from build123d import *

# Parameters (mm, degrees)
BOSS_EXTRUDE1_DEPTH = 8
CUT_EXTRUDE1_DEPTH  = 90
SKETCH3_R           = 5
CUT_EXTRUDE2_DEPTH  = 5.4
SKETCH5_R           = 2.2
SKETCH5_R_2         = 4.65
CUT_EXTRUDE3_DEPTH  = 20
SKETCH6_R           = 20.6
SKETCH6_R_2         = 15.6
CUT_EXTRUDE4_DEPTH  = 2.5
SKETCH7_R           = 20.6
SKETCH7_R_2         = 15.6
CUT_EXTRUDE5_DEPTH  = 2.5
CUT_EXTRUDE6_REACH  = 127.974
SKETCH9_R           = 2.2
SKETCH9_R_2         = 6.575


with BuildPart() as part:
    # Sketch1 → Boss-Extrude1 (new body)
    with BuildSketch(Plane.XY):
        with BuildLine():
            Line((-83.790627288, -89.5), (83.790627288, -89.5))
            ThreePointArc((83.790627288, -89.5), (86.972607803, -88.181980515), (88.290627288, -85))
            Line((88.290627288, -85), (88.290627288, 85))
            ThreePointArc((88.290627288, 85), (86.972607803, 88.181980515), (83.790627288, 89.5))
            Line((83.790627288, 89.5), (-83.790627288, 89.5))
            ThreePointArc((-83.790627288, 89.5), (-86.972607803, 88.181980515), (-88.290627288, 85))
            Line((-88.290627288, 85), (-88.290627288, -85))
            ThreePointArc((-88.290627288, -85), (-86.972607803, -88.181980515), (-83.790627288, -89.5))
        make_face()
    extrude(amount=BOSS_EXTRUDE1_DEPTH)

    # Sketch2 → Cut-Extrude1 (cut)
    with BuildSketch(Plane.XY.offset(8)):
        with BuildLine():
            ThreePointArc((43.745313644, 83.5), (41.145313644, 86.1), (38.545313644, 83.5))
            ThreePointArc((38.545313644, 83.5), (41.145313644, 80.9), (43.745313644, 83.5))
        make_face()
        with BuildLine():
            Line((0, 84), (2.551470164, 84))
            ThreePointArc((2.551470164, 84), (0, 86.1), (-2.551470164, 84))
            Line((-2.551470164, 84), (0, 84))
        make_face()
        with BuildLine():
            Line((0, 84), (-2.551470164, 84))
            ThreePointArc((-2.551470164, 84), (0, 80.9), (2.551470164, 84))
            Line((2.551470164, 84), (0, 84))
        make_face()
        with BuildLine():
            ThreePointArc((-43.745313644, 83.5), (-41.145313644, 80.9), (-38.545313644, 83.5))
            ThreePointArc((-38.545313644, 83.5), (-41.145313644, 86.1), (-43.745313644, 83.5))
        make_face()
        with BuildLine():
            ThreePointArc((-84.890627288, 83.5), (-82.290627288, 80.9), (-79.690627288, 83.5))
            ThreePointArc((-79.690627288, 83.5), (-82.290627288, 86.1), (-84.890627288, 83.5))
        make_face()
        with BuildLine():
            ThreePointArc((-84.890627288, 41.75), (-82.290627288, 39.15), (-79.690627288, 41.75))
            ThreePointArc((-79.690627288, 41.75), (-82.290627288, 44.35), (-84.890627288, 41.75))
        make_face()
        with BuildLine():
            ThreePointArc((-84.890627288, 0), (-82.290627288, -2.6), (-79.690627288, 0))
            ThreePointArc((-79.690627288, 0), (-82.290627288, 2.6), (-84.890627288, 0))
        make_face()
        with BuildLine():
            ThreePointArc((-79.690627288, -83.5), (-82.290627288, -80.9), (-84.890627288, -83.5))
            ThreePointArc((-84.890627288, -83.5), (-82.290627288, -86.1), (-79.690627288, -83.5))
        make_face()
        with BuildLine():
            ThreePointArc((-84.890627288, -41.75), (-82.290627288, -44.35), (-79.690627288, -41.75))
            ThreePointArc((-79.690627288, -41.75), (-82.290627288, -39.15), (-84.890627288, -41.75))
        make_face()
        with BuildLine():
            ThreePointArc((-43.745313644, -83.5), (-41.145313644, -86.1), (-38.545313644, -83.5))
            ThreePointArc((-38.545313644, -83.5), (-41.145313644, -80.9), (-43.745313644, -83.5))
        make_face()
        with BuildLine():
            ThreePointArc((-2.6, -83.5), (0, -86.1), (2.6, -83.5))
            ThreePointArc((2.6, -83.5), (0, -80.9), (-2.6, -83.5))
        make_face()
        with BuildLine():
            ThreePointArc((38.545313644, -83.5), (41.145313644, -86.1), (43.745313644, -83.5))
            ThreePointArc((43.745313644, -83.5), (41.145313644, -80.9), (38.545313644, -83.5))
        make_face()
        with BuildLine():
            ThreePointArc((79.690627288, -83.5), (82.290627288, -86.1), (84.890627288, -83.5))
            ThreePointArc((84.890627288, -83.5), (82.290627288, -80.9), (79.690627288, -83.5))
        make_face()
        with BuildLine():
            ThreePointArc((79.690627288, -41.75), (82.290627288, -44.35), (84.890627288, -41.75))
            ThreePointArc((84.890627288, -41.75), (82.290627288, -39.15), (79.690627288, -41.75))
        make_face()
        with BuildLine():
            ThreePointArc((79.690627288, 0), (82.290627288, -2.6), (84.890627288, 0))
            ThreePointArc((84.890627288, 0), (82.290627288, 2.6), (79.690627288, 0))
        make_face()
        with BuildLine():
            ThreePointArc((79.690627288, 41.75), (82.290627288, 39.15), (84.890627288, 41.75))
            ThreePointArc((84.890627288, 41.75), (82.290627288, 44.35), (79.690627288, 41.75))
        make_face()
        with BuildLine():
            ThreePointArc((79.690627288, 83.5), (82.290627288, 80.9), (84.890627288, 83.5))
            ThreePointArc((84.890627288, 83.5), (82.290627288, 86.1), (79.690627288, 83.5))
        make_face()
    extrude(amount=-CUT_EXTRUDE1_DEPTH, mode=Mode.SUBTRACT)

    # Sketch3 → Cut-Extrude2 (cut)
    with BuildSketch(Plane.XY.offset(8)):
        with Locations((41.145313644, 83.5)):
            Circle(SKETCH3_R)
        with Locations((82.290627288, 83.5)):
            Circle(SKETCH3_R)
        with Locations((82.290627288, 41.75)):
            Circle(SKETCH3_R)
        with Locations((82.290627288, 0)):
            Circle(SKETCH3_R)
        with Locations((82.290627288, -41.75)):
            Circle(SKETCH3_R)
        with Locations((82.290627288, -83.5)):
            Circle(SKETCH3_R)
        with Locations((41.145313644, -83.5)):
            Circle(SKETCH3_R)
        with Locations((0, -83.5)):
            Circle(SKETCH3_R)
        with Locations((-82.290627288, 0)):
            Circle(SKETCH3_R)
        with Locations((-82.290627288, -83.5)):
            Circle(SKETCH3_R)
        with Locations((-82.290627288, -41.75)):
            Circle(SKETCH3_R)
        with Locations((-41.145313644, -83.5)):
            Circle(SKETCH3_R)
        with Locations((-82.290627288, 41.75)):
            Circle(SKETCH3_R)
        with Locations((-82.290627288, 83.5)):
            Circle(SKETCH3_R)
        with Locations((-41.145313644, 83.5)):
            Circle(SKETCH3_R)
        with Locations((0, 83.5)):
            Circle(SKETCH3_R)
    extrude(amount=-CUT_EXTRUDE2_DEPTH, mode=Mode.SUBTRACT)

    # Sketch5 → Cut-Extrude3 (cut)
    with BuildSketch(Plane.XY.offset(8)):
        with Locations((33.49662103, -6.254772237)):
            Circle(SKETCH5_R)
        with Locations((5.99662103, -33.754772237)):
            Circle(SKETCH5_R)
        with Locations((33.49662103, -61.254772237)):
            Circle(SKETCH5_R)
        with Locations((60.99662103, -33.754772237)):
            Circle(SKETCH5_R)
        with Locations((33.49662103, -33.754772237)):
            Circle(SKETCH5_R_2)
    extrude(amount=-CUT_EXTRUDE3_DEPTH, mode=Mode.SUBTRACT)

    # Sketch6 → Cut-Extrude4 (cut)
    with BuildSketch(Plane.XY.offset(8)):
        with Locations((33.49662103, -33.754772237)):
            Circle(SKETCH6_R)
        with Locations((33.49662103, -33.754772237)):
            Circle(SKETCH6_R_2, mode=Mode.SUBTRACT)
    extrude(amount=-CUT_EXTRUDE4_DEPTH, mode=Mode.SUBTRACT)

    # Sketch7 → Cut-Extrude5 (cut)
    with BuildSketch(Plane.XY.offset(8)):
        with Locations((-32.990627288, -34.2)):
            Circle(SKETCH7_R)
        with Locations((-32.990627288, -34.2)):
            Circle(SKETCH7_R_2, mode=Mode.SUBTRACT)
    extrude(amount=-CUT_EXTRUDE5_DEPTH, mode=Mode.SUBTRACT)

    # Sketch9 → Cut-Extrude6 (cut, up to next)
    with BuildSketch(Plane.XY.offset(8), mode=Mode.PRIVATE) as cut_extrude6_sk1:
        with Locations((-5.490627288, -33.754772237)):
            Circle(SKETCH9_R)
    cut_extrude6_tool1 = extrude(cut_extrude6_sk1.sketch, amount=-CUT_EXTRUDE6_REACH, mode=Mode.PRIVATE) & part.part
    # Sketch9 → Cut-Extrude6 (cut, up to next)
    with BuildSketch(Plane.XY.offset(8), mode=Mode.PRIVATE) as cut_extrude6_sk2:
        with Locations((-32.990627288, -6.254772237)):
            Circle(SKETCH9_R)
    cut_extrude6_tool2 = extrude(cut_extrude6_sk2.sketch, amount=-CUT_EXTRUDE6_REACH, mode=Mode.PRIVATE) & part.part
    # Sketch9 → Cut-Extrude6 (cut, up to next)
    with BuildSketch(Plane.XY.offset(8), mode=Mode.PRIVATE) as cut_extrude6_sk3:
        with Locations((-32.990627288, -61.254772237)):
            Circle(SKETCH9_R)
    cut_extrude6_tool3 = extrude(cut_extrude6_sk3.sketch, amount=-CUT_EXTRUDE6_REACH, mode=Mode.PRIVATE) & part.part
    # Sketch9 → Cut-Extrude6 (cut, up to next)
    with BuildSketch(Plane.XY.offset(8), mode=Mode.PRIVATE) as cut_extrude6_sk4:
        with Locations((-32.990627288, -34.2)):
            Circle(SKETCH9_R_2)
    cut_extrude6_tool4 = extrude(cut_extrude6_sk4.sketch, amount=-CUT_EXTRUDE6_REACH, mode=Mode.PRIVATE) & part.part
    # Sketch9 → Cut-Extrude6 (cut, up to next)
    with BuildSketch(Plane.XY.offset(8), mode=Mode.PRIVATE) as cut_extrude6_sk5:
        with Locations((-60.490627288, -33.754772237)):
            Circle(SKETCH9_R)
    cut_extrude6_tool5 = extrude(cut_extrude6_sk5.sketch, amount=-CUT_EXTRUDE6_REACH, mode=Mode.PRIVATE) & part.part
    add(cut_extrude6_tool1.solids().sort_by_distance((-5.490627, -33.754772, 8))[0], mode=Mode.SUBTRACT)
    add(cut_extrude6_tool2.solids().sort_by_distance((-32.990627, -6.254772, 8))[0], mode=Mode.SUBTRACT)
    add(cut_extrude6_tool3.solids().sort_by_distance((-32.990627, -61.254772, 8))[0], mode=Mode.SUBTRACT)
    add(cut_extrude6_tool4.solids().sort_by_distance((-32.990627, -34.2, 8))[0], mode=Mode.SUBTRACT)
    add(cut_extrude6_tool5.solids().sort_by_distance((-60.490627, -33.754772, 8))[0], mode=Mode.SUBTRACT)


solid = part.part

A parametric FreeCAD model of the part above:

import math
import FreeCAD as App
import Part
import Sketcher

V = App.Vector

doc = App.newDocument("Part")
body = doc.addObject("PartDesign::Body", "Body")

# Sketch on XY plane
sketch1 = body.newObject("Sketcher::SketchObject", "Sketch")
sketch1.AttachmentSupport = (doc.getObject("XY_Plane"), [""])
sketch1.MapMode = "FlatFace"
sketch1.addGeometry(Part.LineSegment(V(-83.8, -89.5, 0), V(83.8, -89.5, 0)), False)
sketch1.addGeometry(Part.ArcOfCircle(Part.Circle(V(83.8, -85, 0), V(0, 0, 1), 4.5), math.radians(-90), math.radians(0)), False)
sketch1.addGeometry(Part.LineSegment(V(88.3, -85, 0), V(88.3, 85, 0)), False)
sketch1.addGeometry(Part.ArcOfCircle(Part.Circle(V(83.8, 85, 0), V(0, 0, 1), 4.5), math.radians(0), math.radians(90)), False)
sketch1.addGeometry(Part.LineSegment(V(83.8, 89.5, 0), V(-83.8, 89.5, 0)), False)
sketch1.addGeometry(Part.ArcOfCircle(Part.Circle(V(-83.8, 85, 0), V(0, 0, 1), 4.5), math.radians(90), math.radians(180)), False)
sketch1.addGeometry(Part.LineSegment(V(-88.3, 85, 0), V(-88.3, -85, 0)), False)
sketch1.addGeometry(Part.ArcOfCircle(Part.Circle(V(-83.8, -85, 0), V(0, 0, 1), 4.5), math.radians(-180), math.radians(-90)), False)
sketch1.addConstraint(Sketcher.Constraint("Tangent", 0, 2, 1, 1))
sketch1.addConstraint(Sketcher.Constraint("Tangent", 1, 2, 2, 1))
sketch1.addConstraint(Sketcher.Constraint("Tangent", 2, 2, 3, 1))
sketch1.addConstraint(Sketcher.Constraint("Tangent", 3, 2, 4, 1))
sketch1.addConstraint(Sketcher.Constraint("Tangent", 4, 2, 5, 1))
sketch1.addConstraint(Sketcher.Constraint("Tangent", 5, 2, 6, 1))
sketch1.addConstraint(Sketcher.Constraint("Tangent", 6, 2, 7, 1))
sketch1.addConstraint(Sketcher.Constraint("Tangent", 7, 2, 0, 1))
sketch1.addConstraint(Sketcher.Constraint("Horizontal", 0))
sketch1.addConstraint(Sketcher.Constraint("Vertical", 2))
sketch1.addConstraint(Sketcher.Constraint("Horizontal", 4))
sketch1.addConstraint(Sketcher.Constraint("Vertical", 6))
sketch1.addConstraint(Sketcher.Constraint("Equal", 1, 3))
sketch1.addConstraint(Sketcher.Constraint("Equal", 3, 5))
sketch1.addConstraint(Sketcher.Constraint("Equal", 5, 7))
sketch1.addConstraint(Sketcher.Constraint("Symmetric", 1, 3, 5, 3, -1, 1))
sketch1.addConstraint(Sketcher.Constraint("Radius", 1, 4.5))
sketch1.addConstraint(Sketcher.Constraint("DistanceY", 2, 1, 2, 2, 170.0))
sketch1.addConstraint(Sketcher.Constraint("DistanceX", 0, 1, 0, 2, 167.581255))
pad1 = body.newObject("PartDesign::Pad", "Pad")
pad1.Profile = sketch1
pad1.Length = 8

# Sketch on XY plane
sketch2 = body.newObject("Sketcher::SketchObject", "Sketch001")
sketch2.AttachmentSupport = (doc.getObject("XY_Plane"), [""])
sketch2.MapMode = "FlatFace"
sketch2.AttachmentOffset = App.Placement(V(0, 0, 8), App.Rotation())
sketch2.addGeometry(Part.Circle(V(41.1, 83.5, 0), V(0, 0, 1), 2.6), False)
sketch2.addGeometry(Part.ArcOfCircle(Part.Circle(V(0, 83.5, 0), V(0, 0, 1), 2.6), math.radians(11), math.radians(169)), False)
sketch2.addGeometry(Part.ArcOfCircle(Part.Circle(V(0, 83.5, 0), V(0, 0, 1), 2.6), math.radians(169), math.radians(371)), False)
sketch2.addGeometry(Part.Circle(V(-41.1, 83.5, 0), V(0, 0, 1), 2.6), False)
sketch2.addGeometry(Part.Circle(V(-82.3, 83.5, 0), V(0, 0, 1), 2.6), False)
sketch2.addGeometry(Part.Circle(V(-82.3, 41.8, 0), V(0, 0, 1), 2.6), False)
sketch2.addGeometry(Part.Circle(V(-82.3, 0, 0), V(0, 0, 1), 2.6), False)
sketch2.addGeometry(Part.Circle(V(-82.3, -83.5, 0), V(0, 0, 1), 2.6), False)
sketch2.addGeometry(Part.Circle(V(-82.3, -41.8, 0), V(0, 0, 1), 2.6), False)
sketch2.addGeometry(Part.Circle(V(-41.1, -83.5, 0), V(0, 0, 1), 2.6), False)
sketch2.addGeometry(Part.Circle(V(0, -83.5, 0), V(0, 0, 1), 2.6), False)
sketch2.addGeometry(Part.Circle(V(41.1, -83.5, 0), V(0, 0, 1), 2.6), False)
sketch2.addGeometry(Part.Circle(V(82.3, -83.5, 0), V(0, 0, 1), 2.6), False)
sketch2.addGeometry(Part.Circle(V(82.3, -41.8, 0), V(0, 0, 1), 2.6), False)
sketch2.addGeometry(Part.Circle(V(82.3, 0, 0), V(0, 0, 1), 2.6), False)
sketch2.addGeometry(Part.Circle(V(82.3, 41.8, 0), V(0, 0, 1), 2.6), False)
sketch2.addGeometry(Part.Circle(V(82.3, 83.5, 0), V(0, 0, 1), 2.6), False)
sketch2.addConstraint(Sketcher.Constraint("Tangent", 1, 1, 2, 2))
sketch2.addConstraint(Sketcher.Constraint("Coincident", 2, 1, 1, 2))
sketch2.addConstraint(Sketcher.Constraint("Equal", 0, 1))
sketch2.addConstraint(Sketcher.Constraint("Equal", 2, 3))
sketch2.addConstraint(Sketcher.Constraint("Equal", 3, 4))
sketch2.addConstraint(Sketcher.Constraint("Equal", 4, 5))
sketch2.addConstraint(Sketcher.Constraint("Equal", 5, 6))
sketch2.addConstraint(Sketcher.Constraint("Equal", 6, 7))
sketch2.addConstraint(Sketcher.Constraint("Equal", 7, 8))
sketch2.addConstraint(Sketcher.Constraint("Equal", 8, 9))
sketch2.addConstraint(Sketcher.Constraint("Equal", 9, 10))
sketch2.addConstraint(Sketcher.Constraint("Equal", 10, 11))
sketch2.addConstraint(Sketcher.Constraint("Equal", 11, 12))
sketch2.addConstraint(Sketcher.Constraint("Equal", 12, 13))
sketch2.addConstraint(Sketcher.Constraint("Equal", 13, 14))
sketch2.addConstraint(Sketcher.Constraint("Equal", 14, 15))
sketch2.addConstraint(Sketcher.Constraint("Equal", 15, 16))
sketch2.addConstraint(Sketcher.Constraint("Symmetric", 0, 3, 9, 3, -1, 1))
sketch2.addConstraint(Sketcher.Constraint("Symmetric", 1, 3, 10, 3, -1, 1))
sketch2.addConstraint(Sketcher.Constraint("Symmetric", 3, 3, 11, 3, -1, 1))
sketch2.addConstraint(Sketcher.Constraint("Symmetric", 4, 3, 12, 3, -1, 1))
sketch2.addConstraint(Sketcher.Constraint("Symmetric", 5, 3, 13, 3, -1, 1))
sketch2.addConstraint(Sketcher.Constraint("Symmetric", 6, 3, 14, 3, -1, 1))
sketch2.addConstraint(Sketcher.Constraint("Symmetric", 8, 3, 15, 3, -1, 1))
sketch2.addConstraint(Sketcher.Constraint("Symmetric", 7, 3, 16, 3, -1, 1))
sketch2.addConstraint(Sketcher.Constraint("Symmetric", 0, 3, 3, 3, -2))
sketch2.addConstraint(Sketcher.Constraint("Symmetric", 7, 3, 12, 3, -2))
sketch2.addConstraint(Sketcher.Constraint("Symmetric", 8, 3, 13, 3, -2))
sketch2.addConstraint(Sketcher.Constraint("Symmetric", 1, 1, 2, 1, -2))
sketch2.addConstraint(Sketcher.Constraint("PointOnObject", 6, 3, -1))
sketch2.addConstraint(Sketcher.Constraint("Horizontal", 0, 3, 1, 3))
sketch2.addConstraint(Sketcher.Constraint("Horizontal", 3, 3, 4, 3))
sketch2.addConstraint(Sketcher.Constraint("Vertical", 4, 3, 5, 3))
sketch2.addConstraint(Sketcher.Constraint("Vertical", 5, 3, 6, 3))
sketch2.addConstraint(Sketcher.Constraint("Diameter", 0, 5.2))
sketch2.addConstraint(Sketcher.Constraint("DistanceY", -1, 1, 1, 1, 84.0))
sketch2.addConstraint(Sketcher.Constraint("DistanceY", 7, 3, 4, 3, 167.0))
sketch2.addConstraint(Sketcher.Constraint("DistanceY", 8, 3, 5, 3, 83.5))
sketch2.addConstraint(Sketcher.Constraint("DistanceX", 4, 3, 0, 3, 123.435941))
sketch2.addConstraint(Sketcher.Constraint("DistanceX", -1, 1, 0, 3, 41.145314))
pocket1 = body.newObject("PartDesign::Pocket", "Pocket")
pocket1.Profile = sketch2
pocket1.Length = 90

# Sketch on XY plane
sketch3 = body.newObject("Sketcher::SketchObject", "Sketch002")
sketch3.AttachmentSupport = (doc.getObject("XY_Plane"), [""])
sketch3.MapMode = "FlatFace"
sketch3.AttachmentOffset = App.Placement(V(0, 0, 8), App.Rotation())
sketch3.addGeometry(Part.Circle(V(41, 84, 0), V(0, 0, 1), 5), False)
sketch3.addGeometry(Part.Circle(V(82, 84, 0), V(0, 0, 1), 5), False)
sketch3.addGeometry(Part.Circle(V(82, 42, 0), V(0, 0, 1), 5), False)
sketch3.addGeometry(Part.Circle(V(82, 0, 0), V(0, 0, 1), 5), False)
sketch3.addGeometry(Part.Circle(V(82, -42, 0), V(0, 0, 1), 5), False)
sketch3.addGeometry(Part.Circle(V(82, -84, 0), V(0, 0, 1), 5), False)
sketch3.addGeometry(Part.Circle(V(41, -84, 0), V(0, 0, 1), 5), False)
sketch3.addGeometry(Part.Circle(V(0, -84, 0), V(0, 0, 1), 5), False)
sketch3.addGeometry(Part.Circle(V(-82, 0, 0), V(0, 0, 1), 5), False)
sketch3.addGeometry(Part.Circle(V(-82, -84, 0), V(0, 0, 1), 5), False)
sketch3.addGeometry(Part.Circle(V(-82, -42, 0), V(0, 0, 1), 5), False)
sketch3.addGeometry(Part.Circle(V(-41, -84, 0), V(0, 0, 1), 5), False)
sketch3.addGeometry(Part.Circle(V(-82, 42, 0), V(0, 0, 1), 5), False)
sketch3.addGeometry(Part.Circle(V(-82, 84, 0), V(0, 0, 1), 5), False)
sketch3.addGeometry(Part.Circle(V(-41, 84, 0), V(0, 0, 1), 5), False)
sketch3.addGeometry(Part.Circle(V(0, 84, 0), V(0, 0, 1), 5), False)
sketch3.addConstraint(Sketcher.Constraint("Equal", 0, 1))
sketch3.addConstraint(Sketcher.Constraint("Equal", 1, 2))
sketch3.addConstraint(Sketcher.Constraint("Equal", 2, 3))
sketch3.addConstraint(Sketcher.Constraint("Equal", 3, 4))
sketch3.addConstraint(Sketcher.Constraint("Equal", 4, 5))
sketch3.addConstraint(Sketcher.Constraint("Equal", 5, 6))
sketch3.addConstraint(Sketcher.Constraint("Equal", 6, 7))
sketch3.addConstraint(Sketcher.Constraint("Equal", 7, 8))
sketch3.addConstraint(Sketcher.Constraint("Equal", 8, 9))
sketch3.addConstraint(Sketcher.Constraint("Equal", 9, 10))
sketch3.addConstraint(Sketcher.Constraint("Equal", 10, 11))
sketch3.addConstraint(Sketcher.Constraint("Equal", 11, 12))
sketch3.addConstraint(Sketcher.Constraint("Equal", 12, 13))
sketch3.addConstraint(Sketcher.Constraint("Equal", 13, 14))
sketch3.addConstraint(Sketcher.Constraint("Equal", 14, 15))
sketch3.addConstraint(Sketcher.Constraint("Symmetric", 3, 3, 8, 3, -1, 1))
sketch3.addConstraint(Sketcher.Constraint("Symmetric", 1, 3, 9, 3, -1, 1))
sketch3.addConstraint(Sketcher.Constraint("Symmetric", 2, 3, 10, 3, -1, 1))
sketch3.addConstraint(Sketcher.Constraint("Symmetric", 0, 3, 11, 3, -1, 1))
sketch3.addConstraint(Sketcher.Constraint("Symmetric", 4, 3, 12, 3, -1, 1))
sketch3.addConstraint(Sketcher.Constraint("Symmetric", 5, 3, 13, 3, -1, 1))
sketch3.addConstraint(Sketcher.Constraint("Symmetric", 6, 3, 14, 3, -1, 1))
sketch3.addConstraint(Sketcher.Constraint("Symmetric", 7, 3, 15, 3, -1, 1))
sketch3.addConstraint(Sketcher.Constraint("Symmetric", 5, 3, 9, 3, -2))
sketch3.addConstraint(Sketcher.Constraint("Symmetric", 4, 3, 10, 3, -2))
sketch3.addConstraint(Sketcher.Constraint("Symmetric", 6, 3, 11, 3, -2))
sketch3.addConstraint(Sketcher.Constraint("PointOnObject", 3, 3, -1))
sketch3.addConstraint(Sketcher.Constraint("PointOnObject", 7, 3, -2))
sketch3.addConstraint(Sketcher.Constraint("Horizontal", 0, 3, 1, 3))
sketch3.addConstraint(Sketcher.Constraint("Horizontal", 6, 3, 7, 3))
sketch3.addConstraint(Sketcher.Constraint("Vertical", 1, 3, 2, 3))
sketch3.addConstraint(Sketcher.Constraint("Vertical", 2, 3, 3, 3))
sketch3.addConstraint(Sketcher.Constraint("Diameter", 0, 10.0))
sketch3.addConstraint(Sketcher.Constraint("DistanceY", 5, 3, 1, 3, 167.0))
sketch3.addConstraint(Sketcher.Constraint("DistanceY", 4, 3, 2, 3, 83.5))
sketch3.addConstraint(Sketcher.Constraint("DistanceX", 8, 3, 0, 3, 123.435941))
sketch3.addConstraint(Sketcher.Constraint("DistanceX", -1, 1, 0, 3, 41.145314))
pocket2 = body.newObject("PartDesign::Pocket", "Pocket001")
pocket2.Profile = sketch3
pocket2.Length = 5.4

# Sketch on XY plane
sketch4 = body.newObject("Sketcher::SketchObject", "Sketch003")
sketch4.AttachmentSupport = (doc.getObject("XY_Plane"), [""])
sketch4.MapMode = "FlatFace"
sketch4.AttachmentOffset = App.Placement(V(0, 0, 8), App.Rotation())
sketch4.addGeometry(Part.Circle(V(33.5, -6.3, 0), V(0, 0, 1), 2.2), False)
sketch4.addGeometry(Part.Circle(V(6, -33.8, 0), V(0, 0, 1), 2.2), False)
sketch4.addGeometry(Part.Circle(V(33.5, -61.3, 0), V(0, 0, 1), 2.2), False)
sketch4.addGeometry(Part.Circle(V(61, -33.8, 0), V(0, 0, 1), 2.2), False)
sketch4.addGeometry(Part.Circle(V(33.5, -33.8, 0), V(0, 0, 1), 4.7), False)
sketch4.addConstraint(Sketcher.Constraint("Equal", 0, 1))
sketch4.addConstraint(Sketcher.Constraint("Equal", 1, 2))
sketch4.addConstraint(Sketcher.Constraint("Equal", 2, 3))
sketch4.addConstraint(Sketcher.Constraint("Horizontal", 1, 3, 3, 3))
sketch4.addConstraint(Sketcher.Constraint("Horizontal", 3, 3, 4, 3))
sketch4.addConstraint(Sketcher.Constraint("Vertical", 0, 3, 2, 3))
sketch4.addConstraint(Sketcher.Constraint("Vertical", 2, 3, 4, 3))
sketch4.addConstraint(Sketcher.Constraint("Diameter", 0, 4.4))
sketch4.addConstraint(Sketcher.Constraint("Diameter", 4, 9.3))
sketch4.addConstraint(Sketcher.Constraint("DistanceY", 2, 3, 0, 3, 55.0))
sketch4.addConstraint(Sketcher.Constraint("DistanceX", 1, 3, 3, 3, 55.0))
sketch4.addConstraint(Sketcher.Constraint("DistanceX", 1, 3, 0, 3, 27.5))
sketch4.addConstraint(Sketcher.Constraint("DistanceY", 1, 3, 0, 3, 27.5))
sketch4.addConstraint(Sketcher.Constraint("DistanceX", -1, 1, 0, 3, 33.496621))
sketch4.addConstraint(Sketcher.Constraint("DistanceY", 0, 3, -1, 1, 6.254772))
pocket3 = body.newObject("PartDesign::Pocket", "Pocket002")
pocket3.Profile = sketch4
pocket3.Length = 20

# Sketch on XY plane
sketch5 = body.newObject("Sketcher::SketchObject", "Sketch004")
sketch5.AttachmentSupport = (doc.getObject("XY_Plane"), [""])
sketch5.MapMode = "FlatFace"
sketch5.AttachmentOffset = App.Placement(V(0, 0, 8), App.Rotation())
sketch5.addGeometry(Part.Circle(V(33, -34, 0), V(0, 0, 1), 21), False)
sketch5.addGeometry(Part.Circle(V(33, -34, 0), V(0, 0, 1), 16), False)
sketch5.addConstraint(Sketcher.Constraint("Coincident", 1, 3, 0, 3))
sketch5.addConstraint(Sketcher.Constraint("Diameter", 0, 41.2))
sketch5.addConstraint(Sketcher.Constraint("Diameter", 1, 31.2))
sketch5.addConstraint(Sketcher.Constraint("DistanceX", -1, 1, 0, 3, 33.496621))
sketch5.addConstraint(Sketcher.Constraint("DistanceY", 0, 3, -1, 1, 33.754772))
pocket4 = body.newObject("PartDesign::Pocket", "Pocket003")
pocket4.Profile = sketch5
pocket4.Length = 2.5

# Sketch on XY plane
sketch6 = body.newObject("Sketcher::SketchObject", "Sketch005")
sketch6.AttachmentSupport = (doc.getObject("XY_Plane"), [""])
sketch6.MapMode = "FlatFace"
sketch6.AttachmentOffset = App.Placement(V(0, 0, 8), App.Rotation())
sketch6.addGeometry(Part.Circle(V(-33, -34, 0), V(0, 0, 1), 21), False)
sketch6.addGeometry(Part.Circle(V(-33, -34, 0), V(0, 0, 1), 16), False)
sketch6.addConstraint(Sketcher.Constraint("Coincident", 1, 3, 0, 3))
sketch6.addConstraint(Sketcher.Constraint("Diameter", 0, 41.2))
sketch6.addConstraint(Sketcher.Constraint("Diameter", 1, 31.2))
sketch6.addConstraint(Sketcher.Constraint("DistanceY", 0, 3, -1, 1, 34.2))
sketch6.addConstraint(Sketcher.Constraint("DistanceX", 0, 3, -1, 1, 32.990627))
pocket5 = body.newObject("PartDesign::Pocket", "Pocket004")
pocket5.Profile = sketch6
pocket5.Length = 2.5

# Sketch on XY plane
sketch7 = body.newObject("Sketcher::SketchObject", "Sketch006")
sketch7.AttachmentSupport = (doc.getObject("XY_Plane"), [""])
sketch7.MapMode = "FlatFace"
sketch7.AttachmentOffset = App.Placement(V(0, 0, 8), App.Rotation())
sketch7.addGeometry(Part.Circle(V(-5.5, -33.8, 0), V(0, 0, 1), 2.2), False)
sketch7.addConstraint(Sketcher.Constraint("Diameter", 0, 4.4))
sketch7.addConstraint(Sketcher.Constraint("DistanceX", 0, 3, -1, 1, 5.490627))
sketch7.addConstraint(Sketcher.Constraint("DistanceY", 0, 3, -1, 1, 33.754772))
pocket6 = body.newObject("PartDesign::Pocket", "Pocket005")
pocket6.Profile = sketch7
pocket6.Type = "UpToFirst"

# Sketch on XY plane
sketch8 = body.newObject("Sketcher::SketchObject", "Sketch007")
sketch8.AttachmentSupport = (doc.getObject("XY_Plane"), [""])
sketch8.MapMode = "FlatFace"
sketch8.AttachmentOffset = App.Placement(V(0, 0, 8), App.Rotation())
sketch8.addGeometry(Part.Circle(V(-33, -6.3, 0), V(0, 0, 1), 2.2), False)
sketch8.addConstraint(Sketcher.Constraint("Diameter", 0, 4.4))
sketch8.addConstraint(Sketcher.Constraint("DistanceX", 0, 3, -1, 1, 32.990627))
sketch8.addConstraint(Sketcher.Constraint("DistanceY", 0, 3, -1, 1, 6.254772))
pocket7 = body.newObject("PartDesign::Pocket", "Pocket006")
pocket7.Profile = sketch8
pocket7.Type = "UpToFirst"

# Sketch on XY plane
sketch9 = body.newObject("Sketcher::SketchObject", "Sketch008")
sketch9.AttachmentSupport = (doc.getObject("XY_Plane"), [""])
sketch9.MapMode = "FlatFace"
sketch9.AttachmentOffset = App.Placement(V(0, 0, 8), App.Rotation())
sketch9.addGeometry(Part.Circle(V(-33, -61.3, 0), V(0, 0, 1), 2.2), False)
sketch9.addConstraint(Sketcher.Constraint("Diameter", 0, 4.4))
sketch9.addConstraint(Sketcher.Constraint("DistanceX", 0, 3, -1, 1, 32.990627))
sketch9.addConstraint(Sketcher.Constraint("DistanceY", 0, 3, -1, 1, 61.254772))
pocket8 = body.newObject("PartDesign::Pocket", "Pocket007")
pocket8.Profile = sketch9
pocket8.Type = "UpToFirst"

# Sketch on XY plane
sketch10 = body.newObject("Sketcher::SketchObject", "Sketch009")
sketch10.AttachmentSupport = (doc.getObject("XY_Plane"), [""])
sketch10.MapMode = "FlatFace"
sketch10.AttachmentOffset = App.Placement(V(0, 0, 8), App.Rotation())
sketch10.addGeometry(Part.Circle(V(-33, -34, 0), V(0, 0, 1), 7), False)
sketch10.addConstraint(Sketcher.Constraint("Diameter", 0, 13.15))
sketch10.addConstraint(Sketcher.Constraint("DistanceY", 0, 3, -1, 1, 34.2))
sketch10.addConstraint(Sketcher.Constraint("DistanceX", 0, 3, -1, 1, 32.990627))
pocket9 = body.newObject("PartDesign::Pocket", "Pocket008")
pocket9.Profile = sketch10
pocket9.Type = "UpToFirst"

# Sketch on XY plane
sketch11 = body.newObject("Sketcher::SketchObject", "Sketch010")
sketch11.AttachmentSupport = (doc.getObject("XY_Plane"), [""])
sketch11.MapMode = "FlatFace"
sketch11.AttachmentOffset = App.Placement(V(0, 0, 8), App.Rotation())
sketch11.addGeometry(Part.Circle(V(-60.5, -33.8, 0), V(0, 0, 1), 2.2), False)
sketch11.addConstraint(Sketcher.Constraint("Diameter", 0, 4.4))
sketch11.addConstraint(Sketcher.Constraint("DistanceX", 0, 3, -1, 1, 60.490627))
sketch11.addConstraint(Sketcher.Constraint("DistanceY", 0, 3, -1, 1, 33.754772))
pocket10 = body.newObject("PartDesign::Pocket", "Pocket009")
pocket10.Profile = sketch11
pocket10.Type = "UpToFirst"

doc.recompute()
